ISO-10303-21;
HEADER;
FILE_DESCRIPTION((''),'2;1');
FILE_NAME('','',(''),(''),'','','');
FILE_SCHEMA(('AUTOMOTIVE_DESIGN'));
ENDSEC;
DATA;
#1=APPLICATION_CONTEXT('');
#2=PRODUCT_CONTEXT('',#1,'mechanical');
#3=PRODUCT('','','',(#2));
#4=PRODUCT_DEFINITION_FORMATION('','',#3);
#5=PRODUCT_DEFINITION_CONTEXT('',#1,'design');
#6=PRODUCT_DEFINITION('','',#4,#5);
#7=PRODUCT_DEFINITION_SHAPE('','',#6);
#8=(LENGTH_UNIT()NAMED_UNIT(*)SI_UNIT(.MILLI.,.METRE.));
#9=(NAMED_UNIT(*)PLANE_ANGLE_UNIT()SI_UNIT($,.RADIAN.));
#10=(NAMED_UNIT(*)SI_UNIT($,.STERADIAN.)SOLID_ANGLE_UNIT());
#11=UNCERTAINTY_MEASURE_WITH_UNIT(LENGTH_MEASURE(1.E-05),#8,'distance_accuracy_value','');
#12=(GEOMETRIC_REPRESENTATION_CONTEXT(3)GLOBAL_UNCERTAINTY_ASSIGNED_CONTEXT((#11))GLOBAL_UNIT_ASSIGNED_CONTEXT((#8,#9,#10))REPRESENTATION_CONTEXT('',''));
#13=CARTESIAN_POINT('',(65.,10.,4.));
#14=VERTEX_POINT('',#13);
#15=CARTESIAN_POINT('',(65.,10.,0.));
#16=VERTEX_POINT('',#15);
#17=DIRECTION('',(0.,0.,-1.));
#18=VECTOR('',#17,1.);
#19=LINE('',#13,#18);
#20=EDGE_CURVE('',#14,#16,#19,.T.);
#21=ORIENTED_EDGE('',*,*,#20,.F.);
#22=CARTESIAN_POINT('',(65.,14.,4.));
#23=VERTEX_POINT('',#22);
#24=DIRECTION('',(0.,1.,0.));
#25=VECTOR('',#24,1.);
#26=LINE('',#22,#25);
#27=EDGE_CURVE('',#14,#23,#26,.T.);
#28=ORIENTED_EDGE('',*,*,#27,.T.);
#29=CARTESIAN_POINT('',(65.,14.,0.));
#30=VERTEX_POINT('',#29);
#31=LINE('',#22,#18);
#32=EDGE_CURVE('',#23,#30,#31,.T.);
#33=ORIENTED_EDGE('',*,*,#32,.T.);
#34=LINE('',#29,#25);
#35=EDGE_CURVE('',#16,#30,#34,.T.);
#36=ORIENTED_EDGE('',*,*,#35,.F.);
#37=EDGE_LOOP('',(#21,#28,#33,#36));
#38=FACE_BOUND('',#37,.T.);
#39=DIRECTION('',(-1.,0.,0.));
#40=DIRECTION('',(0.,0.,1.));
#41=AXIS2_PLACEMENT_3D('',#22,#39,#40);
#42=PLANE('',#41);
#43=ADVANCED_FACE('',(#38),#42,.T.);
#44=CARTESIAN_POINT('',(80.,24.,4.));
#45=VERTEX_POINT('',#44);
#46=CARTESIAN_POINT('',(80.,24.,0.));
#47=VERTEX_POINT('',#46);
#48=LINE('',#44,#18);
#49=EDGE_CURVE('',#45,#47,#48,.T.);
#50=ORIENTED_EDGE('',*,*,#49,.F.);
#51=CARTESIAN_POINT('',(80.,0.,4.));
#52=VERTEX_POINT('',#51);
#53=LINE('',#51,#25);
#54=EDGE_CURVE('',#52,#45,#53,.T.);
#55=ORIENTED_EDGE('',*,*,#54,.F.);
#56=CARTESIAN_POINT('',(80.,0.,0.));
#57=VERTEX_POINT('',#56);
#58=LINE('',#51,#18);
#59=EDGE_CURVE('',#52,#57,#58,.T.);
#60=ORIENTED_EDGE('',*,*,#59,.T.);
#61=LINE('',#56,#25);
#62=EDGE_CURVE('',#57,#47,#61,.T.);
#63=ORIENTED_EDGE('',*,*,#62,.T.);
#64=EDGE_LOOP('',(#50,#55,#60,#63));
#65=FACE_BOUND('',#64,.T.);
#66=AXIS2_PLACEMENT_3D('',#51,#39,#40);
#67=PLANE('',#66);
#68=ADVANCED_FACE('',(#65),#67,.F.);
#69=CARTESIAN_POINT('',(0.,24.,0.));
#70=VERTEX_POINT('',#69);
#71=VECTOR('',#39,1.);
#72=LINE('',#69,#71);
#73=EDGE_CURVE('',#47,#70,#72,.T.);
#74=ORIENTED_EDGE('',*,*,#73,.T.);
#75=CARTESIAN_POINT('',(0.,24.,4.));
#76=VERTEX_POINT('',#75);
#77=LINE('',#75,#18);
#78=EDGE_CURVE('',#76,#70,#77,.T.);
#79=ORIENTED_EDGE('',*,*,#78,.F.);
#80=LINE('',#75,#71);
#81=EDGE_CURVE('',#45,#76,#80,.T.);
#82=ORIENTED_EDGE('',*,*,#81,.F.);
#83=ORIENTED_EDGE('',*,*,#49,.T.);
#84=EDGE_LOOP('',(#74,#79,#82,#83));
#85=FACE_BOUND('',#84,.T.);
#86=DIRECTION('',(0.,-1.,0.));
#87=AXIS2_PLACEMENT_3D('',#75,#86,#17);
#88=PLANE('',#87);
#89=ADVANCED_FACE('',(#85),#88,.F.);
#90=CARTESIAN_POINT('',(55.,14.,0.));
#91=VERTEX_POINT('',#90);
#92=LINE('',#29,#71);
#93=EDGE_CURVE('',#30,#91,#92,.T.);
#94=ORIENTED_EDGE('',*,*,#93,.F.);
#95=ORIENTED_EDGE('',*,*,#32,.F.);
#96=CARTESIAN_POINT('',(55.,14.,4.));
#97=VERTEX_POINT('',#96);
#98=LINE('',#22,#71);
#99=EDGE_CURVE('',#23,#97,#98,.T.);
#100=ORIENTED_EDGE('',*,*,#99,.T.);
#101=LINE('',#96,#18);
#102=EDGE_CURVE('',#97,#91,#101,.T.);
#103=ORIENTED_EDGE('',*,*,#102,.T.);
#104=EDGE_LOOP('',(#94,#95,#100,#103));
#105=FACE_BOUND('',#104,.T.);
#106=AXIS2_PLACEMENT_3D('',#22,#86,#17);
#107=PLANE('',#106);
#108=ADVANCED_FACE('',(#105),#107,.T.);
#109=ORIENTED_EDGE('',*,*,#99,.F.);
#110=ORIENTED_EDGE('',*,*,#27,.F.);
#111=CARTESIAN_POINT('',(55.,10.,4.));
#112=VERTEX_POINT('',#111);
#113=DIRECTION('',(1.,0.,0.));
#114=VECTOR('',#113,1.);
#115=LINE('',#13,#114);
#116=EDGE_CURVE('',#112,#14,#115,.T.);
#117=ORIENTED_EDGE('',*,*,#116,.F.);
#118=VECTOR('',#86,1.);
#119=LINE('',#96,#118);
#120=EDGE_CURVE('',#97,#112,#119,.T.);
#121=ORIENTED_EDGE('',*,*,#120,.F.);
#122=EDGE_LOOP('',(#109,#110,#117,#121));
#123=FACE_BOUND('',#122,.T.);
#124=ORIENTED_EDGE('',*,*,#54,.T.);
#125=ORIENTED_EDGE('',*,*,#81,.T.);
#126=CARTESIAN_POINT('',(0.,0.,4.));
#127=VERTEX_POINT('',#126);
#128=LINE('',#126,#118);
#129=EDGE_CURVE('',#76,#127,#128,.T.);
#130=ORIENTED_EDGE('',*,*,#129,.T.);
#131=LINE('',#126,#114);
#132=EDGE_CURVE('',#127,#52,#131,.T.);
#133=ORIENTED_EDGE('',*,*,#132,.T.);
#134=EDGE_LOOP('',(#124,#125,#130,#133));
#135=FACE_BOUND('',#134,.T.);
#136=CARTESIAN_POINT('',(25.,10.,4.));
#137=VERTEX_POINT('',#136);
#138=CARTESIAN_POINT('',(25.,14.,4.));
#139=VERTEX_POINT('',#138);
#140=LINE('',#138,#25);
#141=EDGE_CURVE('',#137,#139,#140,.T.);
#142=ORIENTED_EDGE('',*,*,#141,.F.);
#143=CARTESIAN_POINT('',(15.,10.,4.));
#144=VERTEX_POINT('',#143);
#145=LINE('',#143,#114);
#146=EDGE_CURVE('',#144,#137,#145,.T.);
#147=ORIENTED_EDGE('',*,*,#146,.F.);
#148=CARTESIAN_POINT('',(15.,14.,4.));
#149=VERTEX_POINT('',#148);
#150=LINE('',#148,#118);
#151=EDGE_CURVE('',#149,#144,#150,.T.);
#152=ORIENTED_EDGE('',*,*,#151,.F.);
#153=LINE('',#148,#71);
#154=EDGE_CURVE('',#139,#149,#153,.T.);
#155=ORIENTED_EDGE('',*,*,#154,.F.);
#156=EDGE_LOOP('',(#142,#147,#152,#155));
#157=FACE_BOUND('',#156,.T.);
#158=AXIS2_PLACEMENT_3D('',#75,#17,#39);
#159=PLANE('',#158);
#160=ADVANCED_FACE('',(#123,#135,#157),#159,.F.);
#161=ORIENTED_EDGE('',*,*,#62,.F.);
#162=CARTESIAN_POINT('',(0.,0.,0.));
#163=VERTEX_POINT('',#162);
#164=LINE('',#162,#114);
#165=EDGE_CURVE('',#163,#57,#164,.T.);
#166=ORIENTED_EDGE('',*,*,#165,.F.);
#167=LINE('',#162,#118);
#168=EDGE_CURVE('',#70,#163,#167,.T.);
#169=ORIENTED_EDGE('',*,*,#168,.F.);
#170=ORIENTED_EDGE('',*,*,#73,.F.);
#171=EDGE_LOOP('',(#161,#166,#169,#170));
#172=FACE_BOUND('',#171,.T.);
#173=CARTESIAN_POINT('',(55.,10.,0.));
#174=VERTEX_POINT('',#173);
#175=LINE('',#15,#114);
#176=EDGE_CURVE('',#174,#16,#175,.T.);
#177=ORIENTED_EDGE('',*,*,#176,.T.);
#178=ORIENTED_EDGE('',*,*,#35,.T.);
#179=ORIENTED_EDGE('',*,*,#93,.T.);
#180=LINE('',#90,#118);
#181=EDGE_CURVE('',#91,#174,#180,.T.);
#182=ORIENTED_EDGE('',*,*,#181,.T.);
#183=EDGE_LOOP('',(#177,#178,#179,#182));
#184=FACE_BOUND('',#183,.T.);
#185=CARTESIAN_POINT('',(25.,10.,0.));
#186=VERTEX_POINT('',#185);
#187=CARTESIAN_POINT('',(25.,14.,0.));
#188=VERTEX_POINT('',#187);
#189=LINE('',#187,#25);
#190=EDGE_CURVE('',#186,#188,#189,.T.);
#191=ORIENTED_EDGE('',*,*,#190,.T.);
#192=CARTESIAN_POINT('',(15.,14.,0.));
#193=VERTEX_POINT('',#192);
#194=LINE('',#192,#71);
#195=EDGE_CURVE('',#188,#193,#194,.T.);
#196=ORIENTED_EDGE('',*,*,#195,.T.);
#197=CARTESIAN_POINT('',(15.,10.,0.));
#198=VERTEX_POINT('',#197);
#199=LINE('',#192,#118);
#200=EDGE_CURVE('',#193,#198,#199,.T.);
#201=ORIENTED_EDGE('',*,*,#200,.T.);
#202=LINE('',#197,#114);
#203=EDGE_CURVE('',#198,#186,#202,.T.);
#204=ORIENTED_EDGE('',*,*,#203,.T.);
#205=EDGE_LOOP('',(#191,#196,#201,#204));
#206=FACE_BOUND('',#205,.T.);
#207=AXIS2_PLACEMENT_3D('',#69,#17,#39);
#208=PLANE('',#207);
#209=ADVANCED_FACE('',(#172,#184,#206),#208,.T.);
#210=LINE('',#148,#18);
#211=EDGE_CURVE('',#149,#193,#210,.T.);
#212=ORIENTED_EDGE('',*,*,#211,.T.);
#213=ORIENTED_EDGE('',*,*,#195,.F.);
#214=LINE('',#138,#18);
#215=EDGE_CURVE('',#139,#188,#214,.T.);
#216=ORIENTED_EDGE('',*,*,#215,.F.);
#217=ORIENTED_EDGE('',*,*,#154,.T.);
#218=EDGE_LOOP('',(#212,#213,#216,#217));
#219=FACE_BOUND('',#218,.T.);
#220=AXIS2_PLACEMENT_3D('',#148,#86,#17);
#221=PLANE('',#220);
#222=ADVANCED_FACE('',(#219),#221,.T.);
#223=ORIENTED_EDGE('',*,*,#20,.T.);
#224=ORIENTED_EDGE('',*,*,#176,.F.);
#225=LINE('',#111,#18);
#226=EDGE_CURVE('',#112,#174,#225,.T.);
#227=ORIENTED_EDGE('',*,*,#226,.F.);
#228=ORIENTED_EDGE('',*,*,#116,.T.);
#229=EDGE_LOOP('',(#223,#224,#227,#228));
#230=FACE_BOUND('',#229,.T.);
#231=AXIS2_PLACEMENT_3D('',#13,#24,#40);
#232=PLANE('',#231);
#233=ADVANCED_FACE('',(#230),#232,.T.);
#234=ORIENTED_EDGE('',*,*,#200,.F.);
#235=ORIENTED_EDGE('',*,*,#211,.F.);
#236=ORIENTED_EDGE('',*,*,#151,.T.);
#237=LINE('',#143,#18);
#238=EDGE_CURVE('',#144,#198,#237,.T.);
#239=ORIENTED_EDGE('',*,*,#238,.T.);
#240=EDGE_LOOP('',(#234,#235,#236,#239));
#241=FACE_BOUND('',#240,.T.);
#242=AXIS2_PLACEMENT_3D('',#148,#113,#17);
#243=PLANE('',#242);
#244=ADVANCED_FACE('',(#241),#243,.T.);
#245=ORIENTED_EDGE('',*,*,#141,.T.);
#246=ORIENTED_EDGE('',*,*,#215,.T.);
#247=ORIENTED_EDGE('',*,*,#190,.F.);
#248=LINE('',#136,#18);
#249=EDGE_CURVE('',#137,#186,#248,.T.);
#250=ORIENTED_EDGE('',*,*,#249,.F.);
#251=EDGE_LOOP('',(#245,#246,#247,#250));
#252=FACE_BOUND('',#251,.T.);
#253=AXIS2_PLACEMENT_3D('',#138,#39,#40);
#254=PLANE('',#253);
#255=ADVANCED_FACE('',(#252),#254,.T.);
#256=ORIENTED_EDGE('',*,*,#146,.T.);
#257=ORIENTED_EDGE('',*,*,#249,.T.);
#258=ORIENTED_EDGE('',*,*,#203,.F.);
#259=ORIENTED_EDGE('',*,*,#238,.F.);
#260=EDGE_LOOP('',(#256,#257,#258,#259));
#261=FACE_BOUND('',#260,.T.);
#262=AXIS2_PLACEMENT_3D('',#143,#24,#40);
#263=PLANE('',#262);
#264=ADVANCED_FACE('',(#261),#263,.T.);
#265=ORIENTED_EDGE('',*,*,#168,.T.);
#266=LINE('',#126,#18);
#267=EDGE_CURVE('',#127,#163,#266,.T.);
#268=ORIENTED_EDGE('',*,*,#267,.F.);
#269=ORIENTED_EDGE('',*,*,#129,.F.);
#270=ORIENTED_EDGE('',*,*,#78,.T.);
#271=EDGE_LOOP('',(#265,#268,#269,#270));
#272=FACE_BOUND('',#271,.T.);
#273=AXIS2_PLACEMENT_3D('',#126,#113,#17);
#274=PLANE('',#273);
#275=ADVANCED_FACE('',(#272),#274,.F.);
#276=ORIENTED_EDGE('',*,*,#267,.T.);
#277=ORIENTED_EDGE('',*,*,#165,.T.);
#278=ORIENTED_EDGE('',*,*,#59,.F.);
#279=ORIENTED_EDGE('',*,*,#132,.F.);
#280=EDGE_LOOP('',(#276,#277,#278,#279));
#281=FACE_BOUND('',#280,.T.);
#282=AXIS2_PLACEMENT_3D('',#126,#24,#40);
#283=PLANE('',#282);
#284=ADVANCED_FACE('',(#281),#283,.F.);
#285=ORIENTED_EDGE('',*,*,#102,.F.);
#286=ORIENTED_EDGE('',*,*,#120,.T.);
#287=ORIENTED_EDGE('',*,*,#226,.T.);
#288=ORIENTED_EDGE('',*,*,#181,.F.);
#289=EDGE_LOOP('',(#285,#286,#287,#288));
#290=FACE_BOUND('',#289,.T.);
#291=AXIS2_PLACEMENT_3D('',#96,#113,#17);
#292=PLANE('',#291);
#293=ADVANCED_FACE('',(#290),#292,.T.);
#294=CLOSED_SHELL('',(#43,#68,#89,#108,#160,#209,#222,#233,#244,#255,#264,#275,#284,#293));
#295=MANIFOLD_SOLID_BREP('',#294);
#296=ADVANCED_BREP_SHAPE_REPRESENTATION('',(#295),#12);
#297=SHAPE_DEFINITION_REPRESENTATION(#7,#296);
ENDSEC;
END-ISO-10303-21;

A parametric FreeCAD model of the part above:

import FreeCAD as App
import Part
import Sketcher

V = App.Vector
Q = App.Units.Quantity


def add_polygon(sketch, points):
    """Adds a closed chain of lines whose ends are joined by coincident constraints."""
    first, n = sketch.GeometryCount, len(points)
    for a, b in zip(points, points[1:] + points[:1]):
        sketch.addGeometry(Part.LineSegment(App.Vector(*a, 0), App.Vector(*b, 0)), False)
    for i in range(n):
        sketch.addConstraint(Sketcher.Constraint("Coincident", first + i, 2, first + (i + 1) % n, 1))

doc = App.newDocument("Part")
body = doc.addObject("PartDesign::Body", "Body")

# Sketch on XY plane
sketch1 = body.newObject("Sketcher::SketchObject", "Sketch")
sketch1.AttachmentSupport = (doc.getObject("XY_Plane"), [""])
sketch1.MapMode = "FlatFace"
add_polygon(sketch1, [(0, 24), (0, 0), (80, 0), (80, 24)])  # lines 0-3
add_polygon(sketch1, [(25, 10), (15, 10), (15, 14), (25, 14)])  # lines 4-7
add_polygon(sketch1, [(65, 10), (55, 10), (55, 14), (65, 14)])  # lines 8-11
sketch1.addConstraint([
    Sketcher.Constraint("Vertical", 0),
    Sketcher.Constraint("Horizontal", 1),
    Sketcher.Constraint("Vertical", 2),
    Sketcher.Constraint("Horizontal", 3),
    Sketcher.Constraint("Horizontal", 4),
    Sketcher.Constraint("Vertical", 5),
    Sketcher.Constraint("Horizontal", 6),
    Sketcher.Constraint("Vertical", 7),
    Sketcher.Constraint("Horizontal", 8),
    Sketcher.Constraint("Vertical", 9),
    Sketcher.Constraint("Horizontal", 10),
    Sketcher.Constraint("Vertical", 11),
    Sketcher.Constraint("Coincident", 0, 2, -1, 1),
    Sketcher.Constraint("Horizontal", 7, 2, 8, 2),
    Sketcher.Constraint("Horizontal", 6, 2, 9, 2),
    Sketcher.Constraint("Equal", 6, 8),
    Sketcher.Constraint("DistanceX", 1, 1, 1, 2, Q("80 mm")),
    Sketcher.Constraint("DistanceX", 4, 2, 4, 1, Q("10 mm")),
    Sketcher.Constraint("DistanceY", 0, 2, 0, 1, Q("24 mm")),
    Sketcher.Constraint("DistanceY", 5, 1, 5, 2, Q("4 mm")),
    Sketcher.Constraint("DistanceX", -1, 1, 4, 2, Q("15 mm")),
    Sketcher.Constraint("DistanceY", -1, 1, 4, 2, Q("10 mm")),
    Sketcher.Constraint("DistanceX", -1, 1, 8, 2, Q("55 mm")),
])
pad1 = body.newObject("PartDesign::Pad", "Pad")
pad1.Profile = sketch1
pad1.Length = 4

doc.recompute()
